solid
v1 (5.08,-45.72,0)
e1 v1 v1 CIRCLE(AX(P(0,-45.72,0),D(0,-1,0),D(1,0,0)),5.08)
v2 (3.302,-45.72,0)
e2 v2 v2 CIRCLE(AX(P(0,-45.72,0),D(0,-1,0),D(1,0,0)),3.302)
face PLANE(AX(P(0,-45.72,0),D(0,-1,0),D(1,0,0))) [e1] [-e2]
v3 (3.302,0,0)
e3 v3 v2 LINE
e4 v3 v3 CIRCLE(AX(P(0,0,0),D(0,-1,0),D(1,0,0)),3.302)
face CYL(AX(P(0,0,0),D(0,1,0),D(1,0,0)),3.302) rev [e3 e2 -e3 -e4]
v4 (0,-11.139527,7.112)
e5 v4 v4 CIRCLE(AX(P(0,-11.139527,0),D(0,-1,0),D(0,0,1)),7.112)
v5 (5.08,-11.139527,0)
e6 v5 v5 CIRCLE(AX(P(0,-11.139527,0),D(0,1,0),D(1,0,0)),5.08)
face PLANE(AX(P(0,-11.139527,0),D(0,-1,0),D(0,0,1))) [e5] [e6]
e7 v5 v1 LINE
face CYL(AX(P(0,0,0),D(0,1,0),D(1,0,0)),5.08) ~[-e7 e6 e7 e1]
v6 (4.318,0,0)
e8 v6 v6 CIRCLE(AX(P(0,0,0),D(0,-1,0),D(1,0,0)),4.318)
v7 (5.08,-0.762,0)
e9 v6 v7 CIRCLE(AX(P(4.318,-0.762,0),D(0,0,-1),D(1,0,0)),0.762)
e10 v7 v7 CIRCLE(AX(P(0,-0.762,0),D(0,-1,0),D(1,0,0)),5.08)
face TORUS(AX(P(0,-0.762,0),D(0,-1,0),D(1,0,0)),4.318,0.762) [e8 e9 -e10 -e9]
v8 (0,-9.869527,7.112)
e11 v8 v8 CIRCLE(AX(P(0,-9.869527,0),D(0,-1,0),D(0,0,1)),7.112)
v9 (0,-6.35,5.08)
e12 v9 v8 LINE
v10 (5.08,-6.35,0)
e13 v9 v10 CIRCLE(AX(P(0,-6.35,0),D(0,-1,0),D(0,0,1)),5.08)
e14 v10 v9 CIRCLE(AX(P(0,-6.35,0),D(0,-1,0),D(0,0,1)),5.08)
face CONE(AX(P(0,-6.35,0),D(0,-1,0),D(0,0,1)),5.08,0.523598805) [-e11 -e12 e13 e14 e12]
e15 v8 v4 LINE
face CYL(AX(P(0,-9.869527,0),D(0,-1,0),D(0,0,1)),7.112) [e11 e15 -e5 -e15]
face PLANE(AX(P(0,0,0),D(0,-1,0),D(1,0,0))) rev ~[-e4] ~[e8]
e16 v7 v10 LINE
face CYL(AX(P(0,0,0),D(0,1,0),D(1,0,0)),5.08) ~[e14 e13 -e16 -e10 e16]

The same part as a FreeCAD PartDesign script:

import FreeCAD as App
import Part
import Sketcher
Q = App.Units.Quantity


def edges_at(feature, points):
    """Names of the edges that pass closest to the given points."""
    edges = feature.Shape.Edges
    near = lambda p: min(range(len(edges)), key=lambda i: edges[i].distToShape(Part.Vertex(*p))[0])
    return sorted({f"Edge{near(p) + 1}" for p in points})


def add_polygon(sketch, points):
    """Adds a closed chain of lines whose ends are joined by coincident constraints."""
    first, n = sketch.GeometryCount, len(points)
    for a, b in zip(points, points[1:] + points[:1]):
        sketch.addGeometry(Part.LineSegment(App.Vector(*a, 0), App.Vector(*b, 0)), False)
    for i in range(n):
        sketch.addConstraint(Sketcher.Constraint("Coincident", first + i, 2, first + (i + 1) % n, 1))

doc = App.newDocument("Part")
body = doc.addObject("PartDesign::Body", "Body")

# Sketch on XZ plane
sketch1 = doc.addObject("Sketcher::SketchObject", "Sketch")
body.addObject(sketch1)
sketch1.AttachmentSupport = (doc.XZ_Plane, [""])
sketch1.MapMode = "FlatFace"
sketch1.addGeometry(Part.Circle(App.Vector(0, 0, 0), App.Vector(0, 0, 1), 5.08), False)
sketch1.addGeometry(Part.Circle(App.Vector(0, 0, 0), App.Vector(0, 0, 1), 3.302), False)
sketch1.addConstraint(Sketcher.Constraint("Coincident", 0, 3, -1, 1))
sketch1.addConstraint(Sketcher.Constraint("Coincident", 1, 3, -1, 1))
sketch1.addConstraint(Sketcher.Constraint("Diameter", 0, Q("0.4 in")))
sketch1.addConstraint(Sketcher.Constraint("Diameter", 1, Q("0.26 in")))
pad1 = doc.addObject("PartDesign::Pad", "Pad")
body.addObject(pad1)
pad1.Profile = sketch1
pad1.Length = Q("1.8 in")

# Sketch on YZ plane
sketch2 = doc.addObject("Sketcher::SketchObject", "Sketch001")
body.addObject(sketch2)
sketch2.AttachmentSupport = (doc.YZ_Plane, [""])
sketch2.MapMode = "FlatFace"
add_polygon(sketch2, [(-11.139527, 7.112), (-11.139527, 5.08), (-6.35, 5.08), (-9.869527, 7.112)])  # lines 0-3
sketch2.addConstraint(Sketcher.Constraint("Vertical", 0))
sketch2.addConstraint(Sketcher.Constraint("Horizontal", 1))
sketch2.addConstraint(Sketcher.Constraint("Horizontal", 3))
sketch2.addConstraint(Sketcher.Constraint("Angle", 2, Q("149.999998 deg")))
sketch2.addConstraint(Sketcher.Constraint("DistanceX", 3, 2, 3, 1, Q("0.05 in")))
sketch2.addConstraint(Sketcher.Constraint("DistanceY", 0, 2, 0, 1, Q("0.08 in")))
sketch2.addConstraint(Sketcher.Constraint("DistanceY", -1, 1, 0, 2, Q("0.2 in")))
sketch2.addConstraint(Sketcher.Constraint("DistanceX", 1, 2, -1, 1, Q("0.25 in")))
revolution = doc.addObject("PartDesign::Revolution", "Revolution")
body.addObject(revolution)
revolution.Profile = sketch2
revolution.ReferenceAxis = (sketch2, ["H_Axis"])
revolution.Angle = 360
doc.recompute()

fillet = doc.addObject("PartDesign::Fillet", "Fillet")
body.addObject(fillet)
fillet.Base = (revolution, edges_at(revolution, [(-5.08, 0, 0)]))
fillet.Radius = Q("0.03 in")

doc.recompute()
